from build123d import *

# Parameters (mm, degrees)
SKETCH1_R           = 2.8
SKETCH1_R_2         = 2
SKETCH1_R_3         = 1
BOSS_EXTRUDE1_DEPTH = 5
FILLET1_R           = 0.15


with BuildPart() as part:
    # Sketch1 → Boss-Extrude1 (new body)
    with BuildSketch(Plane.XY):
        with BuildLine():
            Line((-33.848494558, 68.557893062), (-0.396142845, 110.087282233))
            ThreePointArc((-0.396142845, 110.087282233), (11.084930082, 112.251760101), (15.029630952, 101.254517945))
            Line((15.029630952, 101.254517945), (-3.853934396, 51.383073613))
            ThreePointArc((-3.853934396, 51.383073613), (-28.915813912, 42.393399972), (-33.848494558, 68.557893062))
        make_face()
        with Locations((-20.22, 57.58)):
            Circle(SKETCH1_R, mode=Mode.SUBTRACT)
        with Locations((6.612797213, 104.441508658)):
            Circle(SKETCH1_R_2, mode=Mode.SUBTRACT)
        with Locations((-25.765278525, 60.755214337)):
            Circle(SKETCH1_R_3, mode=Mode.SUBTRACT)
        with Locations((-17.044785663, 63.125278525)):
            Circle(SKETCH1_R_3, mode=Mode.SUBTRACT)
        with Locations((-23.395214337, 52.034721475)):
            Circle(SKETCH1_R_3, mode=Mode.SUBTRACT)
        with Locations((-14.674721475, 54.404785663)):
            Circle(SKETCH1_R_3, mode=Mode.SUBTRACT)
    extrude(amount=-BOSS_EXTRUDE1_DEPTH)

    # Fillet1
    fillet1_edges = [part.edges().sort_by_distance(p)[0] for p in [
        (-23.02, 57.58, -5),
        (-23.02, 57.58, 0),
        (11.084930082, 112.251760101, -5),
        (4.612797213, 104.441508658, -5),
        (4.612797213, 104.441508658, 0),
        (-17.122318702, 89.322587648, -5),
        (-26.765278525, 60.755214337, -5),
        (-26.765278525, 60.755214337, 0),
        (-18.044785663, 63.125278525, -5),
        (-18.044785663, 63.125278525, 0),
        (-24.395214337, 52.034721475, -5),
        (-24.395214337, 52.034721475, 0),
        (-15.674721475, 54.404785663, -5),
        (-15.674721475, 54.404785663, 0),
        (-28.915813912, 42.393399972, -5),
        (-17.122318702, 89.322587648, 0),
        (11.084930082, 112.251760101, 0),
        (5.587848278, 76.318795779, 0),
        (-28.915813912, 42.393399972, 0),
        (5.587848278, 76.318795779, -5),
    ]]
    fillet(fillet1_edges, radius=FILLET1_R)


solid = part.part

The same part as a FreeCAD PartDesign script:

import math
import FreeCAD as App
import Part
import Sketcher
from FreeCAD import Vector


def edges_at(feature, points):
    """Names of the edges that pass closest to the given points."""
    edges = feature.Shape.Edges
    near = lambda p: min(range(len(edges)), key=lambda i: edges[i].distToShape(Part.Vertex(*p))[0])
    return sorted({f"Edge{near(p) + 1}" for p in points})

doc = App.newDocument("Part")
body = doc.addObject("PartDesign::Body", "Body")

# Sketch on XY plane
sketch1 = body.newObject("Sketcher::SketchObject", "Sketch")
sketch1.AttachmentSupport = (doc.getObject("XY_Plane"), [""])
sketch1.MapMode = "FlatFace"
sketch1.addGeometry([
    Part.LineSegment(Vector(-0.4, 110.1, 0), Vector(-33.8, 68.6, 0)),  # 0
    Part.ArcOfCircle(Part.Circle(Vector(-20.2, 57.6, 0), Vector(0, 0, 1), 17.5), math.radians(141), math.radians(339)),  # 1
    Part.LineSegment(Vector(-3.9, 51.4, 0), Vector(15, 101.3, 0)),  # 2
    Part.ArcOfCircle(Part.Circle(Vector(6.6, 104.4, 0), Vector(0, 0, 1), 9), math.radians(-21), math.radians(141)),  # 3
    Part.Circle(Vector(-14.7, 54.4, 0), Vector(0, 0, 1), 1),  # 4
    Part.Circle(Vector(-17, 63.1, 0), Vector(0, 0, 1), 1),  # 5
    Part.Circle(Vector(-20.2, 57.6, 0), Vector(0, 0, 1), 2.8),  # 6
    Part.Circle(Vector(-23.4, 52, 0), Vector(0, 0, 1), 1),  # 7
    Part.Circle(Vector(-25.8, 60.8, 0), Vector(0, 0, 1), 1),  # 8
    Part.Circle(Vector(6.6, 104.4, 0), Vector(0, 0, 1), 2),  # 9
], False)
sketch1.addConstraint([
    Sketcher.Constraint("Tangent", 0, 2, 1, 1),
    Sketcher.Constraint("Tangent", 1, 2, 2, 1),
    Sketcher.Constraint("Tangent", 2, 2, 3, 1),
    Sketcher.Constraint("Tangent", 3, 2, 0, 1),
    Sketcher.Constraint("Coincident", 6, 3, 1, 3),
    Sketcher.Constraint("Coincident", 9, 3, 3, 3),
    Sketcher.Constraint("Equal", 4, 5),
    Sketcher.Constraint("Equal", 5, 7),
    Sketcher.Constraint("Equal", 7, 8),
    Sketcher.Constraint("Diameter", 4, 2.0),
    Sketcher.Constraint("Diameter", 9, 4.0),
    Sketcher.Constraint("Radius", 3, 9.0),
    Sketcher.Constraint("Diameter", 6, 5.6),
    Sketcher.Constraint("Radius", 1, 17.5),
    Sketcher.Constraint("DistanceX", 1, 3, -1, 1, 20.22),
    Sketcher.Constraint("DistanceY", -1, 1, 1, 3, 57.58),
    Sketcher.Constraint("DistanceY", -1, 1, 3, 3, 104.441509),
    Sketcher.Constraint("DistanceX", 4, 3, -1, 1, 14.674721),
    Sketcher.Constraint("DistanceY", -1, 1, 5, 3, 63.125279),
    Sketcher.Constraint("DistanceY", -1, 1, 7, 3, 52.034721),
    Sketcher.Constraint("DistanceX", 8, 3, -1, 1, 25.765279),
    Sketcher.Constraint("DistanceX", -1, 1, 2, 2, 15.029631),
    Sketcher.Constraint("DistanceX", 7, 3, 5, 3, 6.350429),
    Sketcher.Constraint("DistanceX", 7, 3, 3, 3, 30.008012),
    Sketcher.Constraint("DistanceY", 4, 3, 8, 3, 6.350429),
    Sketcher.Constraint("DistanceY", 8, 3, 0, 2, 7.802679),
])
pad1 = body.newObject("PartDesign::Pad", "Pad")
pad1.Profile = sketch1
pad1.Length = 5
pad1.Reversed = True
doc.recompute()

fillet = body.newObject("PartDesign::Fillet", "Fillet")
fillet.Base = (pad1, edges_at(pad1, [
    (-23.02, 57.58, -5),
    (-23.02, 57.58, 0),
    (11.085, 112.252, -5),
    (4.613, 104.442, -5),
    (4.613, 104.442, 0),
    (-17.122, 89.323, -5),
    (-26.765, 60.755, -5),
    (-26.765, 60.755, 0),
    (-18.045, 63.125, -5),
    (-18.045, 63.125, 0),
    (-24.395, 52.035, -5),
    (-24.395, 52.035, 0),
    (-15.675, 54.405, -5),
    (-15.675, 54.405, 0),
    (-28.916, 42.393, -5),
    (-17.122, 89.323, 0),
    (11.085, 112.252, 0),
    (5.588, 76.319, 0),
    (-28.916, 42.393, 0),
    (5.588, 76.319, -5),
]))
fillet.Radius = 0.15

doc.recompute()
